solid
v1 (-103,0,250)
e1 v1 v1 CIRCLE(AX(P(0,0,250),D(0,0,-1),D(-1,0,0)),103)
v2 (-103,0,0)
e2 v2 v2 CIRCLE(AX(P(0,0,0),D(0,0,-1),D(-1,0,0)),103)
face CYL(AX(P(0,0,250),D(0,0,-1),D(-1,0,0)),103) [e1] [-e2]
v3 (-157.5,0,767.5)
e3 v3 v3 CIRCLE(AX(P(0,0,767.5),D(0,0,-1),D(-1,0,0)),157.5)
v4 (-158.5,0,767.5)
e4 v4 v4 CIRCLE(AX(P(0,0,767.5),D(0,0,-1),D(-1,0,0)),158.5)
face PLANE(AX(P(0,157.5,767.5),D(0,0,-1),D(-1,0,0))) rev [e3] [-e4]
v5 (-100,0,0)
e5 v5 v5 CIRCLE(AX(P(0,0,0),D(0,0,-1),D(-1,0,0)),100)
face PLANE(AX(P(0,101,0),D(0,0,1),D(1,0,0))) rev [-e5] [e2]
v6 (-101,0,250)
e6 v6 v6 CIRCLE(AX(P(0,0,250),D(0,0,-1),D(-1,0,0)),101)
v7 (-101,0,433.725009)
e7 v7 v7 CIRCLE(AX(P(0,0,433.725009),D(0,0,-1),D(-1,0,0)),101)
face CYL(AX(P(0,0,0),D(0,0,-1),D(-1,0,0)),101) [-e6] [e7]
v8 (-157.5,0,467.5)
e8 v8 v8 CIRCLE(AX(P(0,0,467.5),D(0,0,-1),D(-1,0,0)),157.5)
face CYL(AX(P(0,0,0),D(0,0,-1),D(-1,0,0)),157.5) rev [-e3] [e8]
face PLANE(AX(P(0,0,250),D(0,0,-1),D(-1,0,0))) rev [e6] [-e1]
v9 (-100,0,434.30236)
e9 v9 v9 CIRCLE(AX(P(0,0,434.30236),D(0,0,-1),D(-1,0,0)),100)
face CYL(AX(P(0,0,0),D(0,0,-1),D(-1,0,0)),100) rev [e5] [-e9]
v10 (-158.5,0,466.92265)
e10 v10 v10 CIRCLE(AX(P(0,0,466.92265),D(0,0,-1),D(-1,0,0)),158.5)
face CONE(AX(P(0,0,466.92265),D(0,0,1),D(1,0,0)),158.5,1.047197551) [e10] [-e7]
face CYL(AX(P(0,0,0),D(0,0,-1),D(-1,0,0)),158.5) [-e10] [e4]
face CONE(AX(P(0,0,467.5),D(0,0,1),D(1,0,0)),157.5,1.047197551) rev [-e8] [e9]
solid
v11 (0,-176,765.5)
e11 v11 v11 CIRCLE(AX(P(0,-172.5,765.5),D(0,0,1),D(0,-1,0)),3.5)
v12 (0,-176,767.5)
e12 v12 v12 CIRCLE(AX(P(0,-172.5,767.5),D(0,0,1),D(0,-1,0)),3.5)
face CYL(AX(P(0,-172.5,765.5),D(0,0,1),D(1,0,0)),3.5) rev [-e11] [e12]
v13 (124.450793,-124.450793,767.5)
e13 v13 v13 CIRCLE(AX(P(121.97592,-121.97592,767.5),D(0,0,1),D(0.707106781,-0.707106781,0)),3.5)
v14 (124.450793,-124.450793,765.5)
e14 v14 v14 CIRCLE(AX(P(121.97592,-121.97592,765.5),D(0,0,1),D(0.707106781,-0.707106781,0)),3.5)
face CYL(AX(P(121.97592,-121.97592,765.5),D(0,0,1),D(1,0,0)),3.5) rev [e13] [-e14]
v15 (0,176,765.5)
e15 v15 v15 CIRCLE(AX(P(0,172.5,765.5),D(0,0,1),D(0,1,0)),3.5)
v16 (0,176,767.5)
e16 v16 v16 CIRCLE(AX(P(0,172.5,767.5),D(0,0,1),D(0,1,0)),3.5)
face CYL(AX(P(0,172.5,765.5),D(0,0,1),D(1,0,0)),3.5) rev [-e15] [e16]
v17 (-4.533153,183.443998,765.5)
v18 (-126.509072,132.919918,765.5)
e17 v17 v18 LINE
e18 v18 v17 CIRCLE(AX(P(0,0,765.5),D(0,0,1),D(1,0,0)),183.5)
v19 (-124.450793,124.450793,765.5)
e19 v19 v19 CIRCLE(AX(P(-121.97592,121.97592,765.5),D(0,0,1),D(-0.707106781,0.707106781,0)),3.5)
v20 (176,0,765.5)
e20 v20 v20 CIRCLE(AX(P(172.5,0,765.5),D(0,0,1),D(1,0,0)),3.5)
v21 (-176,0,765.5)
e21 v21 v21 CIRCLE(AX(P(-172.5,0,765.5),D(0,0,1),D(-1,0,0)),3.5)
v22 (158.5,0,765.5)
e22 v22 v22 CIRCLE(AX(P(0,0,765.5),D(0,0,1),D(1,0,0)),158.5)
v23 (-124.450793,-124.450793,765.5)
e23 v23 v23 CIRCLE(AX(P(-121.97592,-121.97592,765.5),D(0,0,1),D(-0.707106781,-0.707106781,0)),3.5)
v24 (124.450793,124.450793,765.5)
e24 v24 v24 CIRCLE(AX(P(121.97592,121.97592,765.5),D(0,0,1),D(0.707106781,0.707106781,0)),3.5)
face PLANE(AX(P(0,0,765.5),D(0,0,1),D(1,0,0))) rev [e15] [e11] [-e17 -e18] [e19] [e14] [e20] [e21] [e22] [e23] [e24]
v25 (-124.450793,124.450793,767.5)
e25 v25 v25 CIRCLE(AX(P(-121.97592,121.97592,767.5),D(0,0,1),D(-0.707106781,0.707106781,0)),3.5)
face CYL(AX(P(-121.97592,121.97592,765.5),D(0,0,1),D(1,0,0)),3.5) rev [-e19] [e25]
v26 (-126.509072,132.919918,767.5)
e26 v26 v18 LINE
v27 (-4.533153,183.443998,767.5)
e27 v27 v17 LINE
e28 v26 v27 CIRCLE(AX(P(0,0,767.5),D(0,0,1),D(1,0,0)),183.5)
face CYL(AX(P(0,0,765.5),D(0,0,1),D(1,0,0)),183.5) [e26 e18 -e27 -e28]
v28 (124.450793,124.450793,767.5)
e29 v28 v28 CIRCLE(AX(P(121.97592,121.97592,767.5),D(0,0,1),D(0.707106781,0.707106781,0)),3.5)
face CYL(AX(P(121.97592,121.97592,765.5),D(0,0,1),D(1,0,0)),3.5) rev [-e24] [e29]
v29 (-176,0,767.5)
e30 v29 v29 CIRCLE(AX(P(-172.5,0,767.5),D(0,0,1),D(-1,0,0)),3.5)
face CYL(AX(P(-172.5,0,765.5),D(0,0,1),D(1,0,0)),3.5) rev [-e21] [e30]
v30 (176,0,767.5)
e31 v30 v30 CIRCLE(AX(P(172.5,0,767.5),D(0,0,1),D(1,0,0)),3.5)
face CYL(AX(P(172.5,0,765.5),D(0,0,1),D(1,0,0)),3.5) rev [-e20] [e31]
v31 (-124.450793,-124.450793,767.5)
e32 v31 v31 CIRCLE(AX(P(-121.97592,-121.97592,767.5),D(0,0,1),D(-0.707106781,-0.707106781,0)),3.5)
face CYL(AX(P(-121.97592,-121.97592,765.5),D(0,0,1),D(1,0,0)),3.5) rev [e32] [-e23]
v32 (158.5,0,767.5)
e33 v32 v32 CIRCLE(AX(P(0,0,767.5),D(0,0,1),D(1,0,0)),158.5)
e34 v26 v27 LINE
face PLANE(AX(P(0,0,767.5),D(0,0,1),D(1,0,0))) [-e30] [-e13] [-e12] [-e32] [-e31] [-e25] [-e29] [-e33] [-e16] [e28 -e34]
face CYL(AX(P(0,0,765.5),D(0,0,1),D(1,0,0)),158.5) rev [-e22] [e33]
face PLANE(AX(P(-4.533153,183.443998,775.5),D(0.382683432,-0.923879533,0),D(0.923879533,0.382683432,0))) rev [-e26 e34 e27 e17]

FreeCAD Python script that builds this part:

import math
import FreeCAD as App
import Part
import Sketcher
Q = App.Units.Quantity

doc = App.newDocument("Part")
body = doc.addObject("PartDesign::Body", "Body")

# Sketch on YZ plane
sketch1 = body.newObject("Sketcher::SketchObject", "Sketch")
sketch1.AttachmentSupport = (doc.getObject("YZ_Plane"), [""])
sketch1.MapMode = "FlatFace"
sketch1.addGeometry([
    Part.LineSegment(App.Vector(157.5, 767.5, 0), App.Vector(157.5, 467.5, 0)),  # 0
    Part.LineSegment(App.Vector(157.5, 467.5, 0), App.Vector(100, 434.3, 0)),  # 1
    Part.LineSegment(App.Vector(100, 434.3, 0), App.Vector(100, 0, 0)),  # 2
    Part.LineSegment(App.Vector(100, 0, 0), App.Vector(101, 0, 0)),  # 3
    Part.LineSegment(App.Vector(101, 0, 0), App.Vector(101, 433.7, 0)),  # 4
    Part.LineSegment(App.Vector(101, 433.7, 0), App.Vector(158.5, 466.9, 0)),  # 5
    Part.LineSegment(App.Vector(158.5, 466.9, 0), App.Vector(158.5, 767.5, 0)),  # 6
    Part.LineSegment(App.Vector(158.5, 767.5, 0), App.Vector(157.5, 767.5, 0)),  # 7
], False)
sketch1.addConstraint([
    Sketcher.Constraint("Coincident", 0, 2, 1, 1),
    Sketcher.Constraint("Coincident", 1, 2, 2, 1),
    Sketcher.Constraint("Coincident", 2, 2, 3, 1),
    Sketcher.Constraint("Coincident", 3, 2, 4, 1),
    Sketcher.Constraint("Coincident", 4, 2, 5, 1),
    Sketcher.Constraint("Coincident", 5, 2, 6, 1),
    Sketcher.Constraint("Coincident", 6, 2, 7, 1),
    Sketcher.Constraint("Coincident", 7, 2, 0, 1),
    Sketcher.Constraint("Vertical", 0),
    Sketcher.Constraint("Vertical", 2),
    Sketcher.Constraint("Horizontal", 3),
    Sketcher.Constraint("Vertical", 4),
    Sketcher.Constraint("Vertical", 6),
    Sketcher.Constraint("Horizontal", 7),
    Sketcher.Constraint("PointOnObject", 2, 2, -1),
    Sketcher.Constraint("Parallel", 1, 5),
    Sketcher.Constraint("Equal", 3, 7),
    Sketcher.Constraint("DistanceX", 3, 1, 3, 2, Q("1 mm")),
    Sketcher.Constraint("DistanceY", 0, 2, 0, 1, Q("300 mm")),
    Sketcher.Constraint("Angle", 1, Q("-150 deg")),
    Sketcher.Constraint("DistanceX", -1, 1, 1, 2, Q("100 mm")),
    Sketcher.Constraint("DistanceX", -1, 1, 0, 2, Q("157.5 mm")),
    Sketcher.Constraint("DistanceY", -1, 1, 0, 2, Q("467.5 mm")),
    Sketcher.Constraint("DistanceY", 4, 1, 4, 2, Q("433.725009 mm")),
])
revolution = body.newObject("PartDesign::Revolution", "Revolution")
revolution.Profile = sketch1
revolution.ReferenceAxis = (sketch1, ["V_Axis"])
revolution.Angle = 360

# Sketch on XY plane
sketch2 = body.newObject("Sketcher::SketchObject", "Sketch001")
sketch2.AttachmentSupport = (doc.getObject("XY_Plane"), [""])
sketch2.MapMode = "FlatFace"
sketch2.AttachmentOffset = App.Placement(App.Vector(0, 0, 250), App.Rotation())
sketch2.addGeometry([
    Part.Circle(App.Vector(0, 0, 0), App.Vector(0, 0, 1), 103),
    Part.Circle(App.Vector(0, 0, 0), App.Vector(0, 0, 1), 101),
], False)
sketch2.addConstraint([
    Sketcher.Constraint("Coincident", 0, 3, -1, 1),
    Sketcher.Constraint("Coincident", 1, 3, -1, 1),
    Sketcher.Constraint("Diameter", 0, Q("206 mm")),
    Sketcher.Constraint("Diameter", 1, Q("202 mm")),
])
pad1 = body.newObject("PartDesign::Pad", "Pad")
pad1.Profile = sketch2
pad1.Length = 250
pad1.Reversed = True
body2 = doc.addObject("PartDesign::Body", "Body001")

# Sketch on XY plane
sketch3 = body2.newObject("Sketcher::SketchObject", "Sketch002")
sketch3.AttachmentSupport = (doc.getObject("XY_Plane001"), [""])
sketch3.MapMode = "FlatFace"
sketch3.AttachmentOffset = App.Placement(App.Vector(0, 0, 767.5), App.Rotation())
sketch3.addGeometry([
    Part.Circle(App.Vector(0, 0, 0), App.Vector(0, 0, 1), 184),
    Part.Circle(App.Vector(0, 0, 0), App.Vector(0, 0, 1), 158),
], False)
sketch3.addConstraint([
    Sketcher.Constraint("Coincident", 0, 3, -1, 1),
    Sketcher.Constraint("Coincident", 1, 3, -1, 1),
    Sketcher.Constraint("Diameter", 0, Q("367 mm")),
    Sketcher.Constraint("Diameter", 1, Q("317 mm")),
])
pad2 = body2.newObject("PartDesign::Pad", "Pad001")
pad2.Profile = sketch3
pad2.Length = 2
pad2.Reversed = True

# Sketch on XY plane
sketch4 = body2.newObject("Sketcher::SketchObject", "Sketch003")
sketch4.AttachmentSupport = (doc.getObject("XY_Plane001"), [""])
sketch4.MapMode = "FlatFace"
sketch4.AttachmentOffset = App.Placement(App.Vector(0, 0, 767.5), App.Rotation())
sketch4.addGeometry(Part.Circle(App.Vector(172.5, 0, 0), App.Vector(0, 0, 1), 3.5), False)
sketch4.addConstraint([
    Sketcher.Constraint("PointOnObject", 0, 3, -1),
    Sketcher.Constraint("Diameter", 0, Q("7 mm")),
    Sketcher.Constraint("DistanceX", -1, 1, 0, 3, Q("172.5 mm")),
])
pocket1 = body2.newObject("PartDesign::Pocket", "Pocket")
pocket1.Profile = sketch4
pocket1.Length = 2
doc.recompute()

polarpattern = body2.newObject("PartDesign::PolarPattern", "PolarPattern")
polarpattern.Originals = [pocket1]
polarpattern.Axis = (doc.getObject("Z_Axis001"), [""])
polarpattern.Angle = 360
polarpattern.Occurrences = 8
body2.Tip = polarpattern

# Sketch on XY plane
sketch5 = body2.newObject("Sketcher::SketchObject", "Sketch004")
sketch5.AttachmentSupport = (doc.getObject("XY_Plane001"), [""])
sketch5.MapMode = "FlatFace"
sketch5.AttachmentOffset = App.Placement(App.Vector(0, 0, 765.5), App.Rotation())
sketch5.addGeometry([
    Part.LineSegment(App.Vector(-5, 183, 0), App.Vector(-127, 133, 0)),
    Part.ArcOfCircle(Part.Circle(App.Vector(0, 0, 0), App.Vector(0, 0, 1), 184), math.radians(91), math.radians(134)),
], False)
sketch5.addConstraint([
    Sketcher.Constraint("Coincident", 0, 1, 1, 1),
    Sketcher.Constraint("Coincident", 1, 2, 0, 2),
    Sketcher.Constraint("Coincident", 1, 3, -1, 1),
    Sketcher.Constraint("Radius", 1, Q("183.5 mm")),
    Sketcher.Constraint("Angle", 0, Q("-157.5 deg")),
    Sketcher.Constraint("DistanceY", -1, 1, 0, 1, Q("183.443998 mm")),
])
pocket2 = body2.newObject("PartDesign::Pocket", "Pocket001")
pocket2.Profile = sketch5
pocket2.Length = 10
pocket2.Reversed = True

doc.recompute()
